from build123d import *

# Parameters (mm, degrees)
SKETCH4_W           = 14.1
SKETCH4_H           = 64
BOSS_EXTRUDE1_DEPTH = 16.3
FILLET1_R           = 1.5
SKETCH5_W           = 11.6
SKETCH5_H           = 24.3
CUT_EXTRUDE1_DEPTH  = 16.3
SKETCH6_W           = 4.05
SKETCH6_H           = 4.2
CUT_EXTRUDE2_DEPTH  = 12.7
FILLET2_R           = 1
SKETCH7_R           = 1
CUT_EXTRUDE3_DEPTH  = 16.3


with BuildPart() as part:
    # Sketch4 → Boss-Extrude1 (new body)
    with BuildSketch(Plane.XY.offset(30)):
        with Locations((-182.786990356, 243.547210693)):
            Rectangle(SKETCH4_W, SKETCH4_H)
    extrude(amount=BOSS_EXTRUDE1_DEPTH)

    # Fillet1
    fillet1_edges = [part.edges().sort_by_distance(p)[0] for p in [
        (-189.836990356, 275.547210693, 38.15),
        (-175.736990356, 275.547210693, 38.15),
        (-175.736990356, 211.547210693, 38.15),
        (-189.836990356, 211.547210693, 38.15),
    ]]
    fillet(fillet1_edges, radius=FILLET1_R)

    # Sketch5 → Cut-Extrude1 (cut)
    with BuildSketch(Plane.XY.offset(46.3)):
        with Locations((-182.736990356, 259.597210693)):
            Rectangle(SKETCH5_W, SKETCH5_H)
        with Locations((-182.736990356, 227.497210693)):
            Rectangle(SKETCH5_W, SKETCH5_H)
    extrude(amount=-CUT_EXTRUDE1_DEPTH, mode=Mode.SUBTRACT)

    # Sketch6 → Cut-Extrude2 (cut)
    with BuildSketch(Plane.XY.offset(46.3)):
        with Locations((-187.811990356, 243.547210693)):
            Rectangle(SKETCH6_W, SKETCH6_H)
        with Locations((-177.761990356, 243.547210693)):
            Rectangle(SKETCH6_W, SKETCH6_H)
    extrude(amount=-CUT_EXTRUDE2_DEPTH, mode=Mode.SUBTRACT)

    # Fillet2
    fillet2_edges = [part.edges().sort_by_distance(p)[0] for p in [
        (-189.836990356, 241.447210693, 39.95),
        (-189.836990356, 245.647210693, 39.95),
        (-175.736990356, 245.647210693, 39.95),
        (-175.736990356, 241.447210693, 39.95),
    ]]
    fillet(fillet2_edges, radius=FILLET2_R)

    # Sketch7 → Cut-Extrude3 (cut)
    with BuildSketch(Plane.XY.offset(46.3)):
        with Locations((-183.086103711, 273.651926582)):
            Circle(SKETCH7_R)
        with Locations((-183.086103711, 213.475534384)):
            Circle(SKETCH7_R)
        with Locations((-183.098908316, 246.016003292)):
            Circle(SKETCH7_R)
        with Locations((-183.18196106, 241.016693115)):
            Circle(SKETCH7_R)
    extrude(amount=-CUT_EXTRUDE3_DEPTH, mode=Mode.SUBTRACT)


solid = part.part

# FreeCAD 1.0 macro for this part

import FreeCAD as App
import Part
import Sketcher
from FreeCAD import Vector
Q = App.Units.Quantity


def edges_at(feature, points):
    """Names of the edges that pass closest to the given points."""
    edges = feature.Shape.Edges
    near = lambda p: min(range(len(edges)), key=lambda i: edges[i].distToShape(Part.Vertex(*p))[0])
    return sorted({f"Edge{near(p) + 1}" for p in points})

doc = App.newDocument("Part")
params = doc.addObject("Spreadsheet::Sheet", "Params")
for row, (alias, value) in enumerate([
    ("sketch1_height", "64 mm"),
    ("sketch1_width", "14.1 mm"),
    ("pad1_length", "16.3 mm"),
    ("fillet_radius", "1.5 mm"),
    ("sketch2_width", "11.6 mm"),
    ("sketch2_height", "24.3 mm"),
    ("pocket1_length", "16.3 mm"),
    ("sketch3_height", "4.2 mm"),
    ("sketch3_width", "4.05 mm"),
    ("pocket2_length", "12.7 mm"),
    ("fillet2_radius", "1 mm"),
    ("sketch4_diameter", "2 mm"),
    ("pocket3_length", "16.3 mm"),
], start=1):
    params.set(f"A{row}", alias)
    params.set(f"B{row}", "=" + value)
    params.setAlias(f"B{row}", alias)

body = doc.addObject("PartDesign::Body", "Body")

sketch1 = body.newObject("Sketcher::SketchObject", "Sketch")
sketch1.AttachmentSupport = (doc.getObject("XY_Plane"), [""])
sketch1.MapMode = "FlatFace"
sketch1.AttachmentOffset = App.Placement(Vector(0, 0, 30), App.Rotation())
sketch1.addGeometry(Part.LineSegment(Vector(-190, 276, 0), Vector(-190, 212, 0)), False)
sketch1.addGeometry(Part.LineSegment(Vector(-190, 212, 0), Vector(-176, 212, 0)), False)
sketch1.addGeometry(Part.LineSegment(Vector(-176, 212, 0), Vector(-176, 276, 0)), False)
sketch1.addGeometry(Part.LineSegment(Vector(-176, 276, 0), Vector(-190, 276, 0)), False)
sketch1.addConstraint(Sketcher.Constraint("Coincident", 0, 2, 1, 1))
sketch1.addConstraint(Sketcher.Constraint("Coincident", 1, 2, 2, 1))
sketch1.addConstraint(Sketcher.Constraint("Coincident", 2, 2, 3, 1))
sketch1.addConstraint(Sketcher.Constraint("Coincident", 3, 2, 0, 1))
sketch1.addConstraint(Sketcher.Constraint("Vertical", 0))
sketch1.addConstraint(Sketcher.Constraint("Horizontal", 1))
sketch1.addConstraint(Sketcher.Constraint("Vertical", 2))
sketch1.addConstraint(Sketcher.Constraint("Horizontal", 3))
sketch1.addConstraint(Sketcher.Constraint("DistanceY", 0, 2, 0, 1, Q("64 mm")))
sketch1.addConstraint(Sketcher.Constraint("DistanceX", 1, 1, 1, 2, Q("14.1 mm")))
sketch1.addConstraint(Sketcher.Constraint("DistanceX", 0, 2, -1, 1, Q("189.83699 mm")))
sketch1.addConstraint(Sketcher.Constraint("DistanceY", -1, 1, 0, 2, Q("211.547211 mm")))
sketch1.setExpression("Constraints[8]", "Params.sketch1_height")
sketch1.setExpression("Constraints[9]", "Params.sketch1_width")
pad1 = body.newObject("PartDesign::Pad", "Pad")
pad1.Profile = sketch1
pad1.setExpression("Length", "Params.pad1_length")
doc.recompute()

fillet = body.newObject("PartDesign::Fillet", "Fillet")
fillet.Base = (pad1, edges_at(pad1, [
    (-189.837, 275.547, 38.15),
    (-175.737, 275.547, 38.15),
    (-175.737, 211.547, 38.15),
    (-189.837, 211.547, 38.15),
]))
fillet.setExpression("Radius", "Params.fillet_radius")

sketch2 = body.newObject("Sketcher::SketchObject", "Sketch001")
sketch2.AttachmentSupport = (doc.getObject("XY_Plane"), [""])
sketch2.MapMode = "FlatFace"
sketch2.AttachmentOffset = App.Placement(Vector(0, 0, 46.3), App.Rotation())
sketch2.addGeometry(Part.LineSegment(Vector(-189, 272, 0), Vector(-189, 247, 0)), False)
sketch2.addGeometry(Part.LineSegment(Vector(-189, 247, 0), Vector(-177, 247, 0)), False)
sketch2.addGeometry(Part.LineSegment(Vector(-177, 247, 0), Vector(-177, 272, 0)), False)
sketch2.addGeometry(Part.LineSegment(Vector(-177, 272, 0), Vector(-189, 272, 0)), False)
sketch2.addGeometry(Part.LineSegment(Vector(-189, 240, 0), Vector(-189, 215, 0)), False)
sketch2.addGeometry(Part.LineSegment(Vector(-189, 215, 0), Vector(-177, 215, 0)), False)
sketch2.addGeometry(Part.LineSegment(Vector(-177, 215, 0), Vector(-177, 240, 0)), False)
sketch2.addGeometry(Part.LineSegment(Vector(-177, 240, 0), Vector(-189, 240, 0)), False)
sketch2.addConstraint(Sketcher.Constraint("Coincident", 0, 2, 1, 1))
sketch2.addConstraint(Sketcher.Constraint("Coincident", 1, 2, 2, 1))
sketch2.addConstraint(Sketcher.Constraint("Coincident", 2, 2, 3, 1))
sketch2.addConstraint(Sketcher.Constraint("Coincident", 3, 2, 0, 1))
sketch2.addConstraint(Sketcher.Constraint("Coincident", 4, 2, 5, 1))
sketch2.addConstraint(Sketcher.Constraint("Coincident", 5, 2, 6, 1))
sketch2.addConstraint(Sketcher.Constraint("Coincident", 6, 2, 7, 1))
sketch2.addConstraint(Sketcher.Constraint("Coincident", 7, 2, 4, 1))
sketch2.addConstraint(Sketcher.Constraint("Vertical", 0))
sketch2.addConstraint(Sketcher.Constraint("Horizontal", 1))
sketch2.addConstraint(Sketcher.Constraint("Vertical", 2))
sketch2.addConstraint(Sketcher.Constraint("Horizontal", 3))
sketch2.addConstraint(Sketcher.Constraint("Vertical", 4))
sketch2.addConstraint(Sketcher.Constraint("Horizontal", 5))
sketch2.addConstraint(Sketcher.Constraint("Vertical", 6))
sketch2.addConstraint(Sketcher.Constraint("Horizontal", 7))
sketch2.addConstraint(Sketcher.Constraint("Vertical", 3, 2, 4, 2))
sketch2.addConstraint(Sketcher.Constraint("Vertical", 2, 2, 5, 2))
sketch2.addConstraint(Sketcher.Constraint("Equal", 2, 4))
sketch2.addConstraint(Sketcher.Constraint("DistanceX", 1, 1, 1, 2, Q("11.6 mm")))
sketch2.addConstraint(Sketcher.Constraint("DistanceY", 0, 2, 0, 1, Q("24.3 mm")))
sketch2.addConstraint(Sketcher.Constraint("DistanceY", 4, 2, 0, 2, Q("32.1 mm")))
sketch2.addConstraint(Sketcher.Constraint("DistanceX", 0, 2, -1, 1, Q("188.53699 mm")))
sketch2.addConstraint(Sketcher.Constraint("DistanceY", -1, 1, 0, 2, Q("247.447211 mm")))
sketch2.setExpression("Constraints[19]", "Params.sketch2_width")
sketch2.setExpression("Constraints[20]", "Params.sketch2_height")
pocket1 = body.newObject("PartDesign::Pocket", "Pocket")
pocket1.Profile = sketch2
pocket1.setExpression("Length", "Params.pocket1_length")

sketch3 = body.newObject("Sketcher::SketchObject", "Sketch002")
sketch3.AttachmentSupport = (doc.getObject("XY_Plane"), [""])
sketch3.MapMode = "FlatFace"
sketch3.AttachmentOffset = App.Placement(Vector(0, 0, 46.3), App.Rotation())
sketch3.addGeometry(Part.LineSegment(Vector(-189.8, 245.6, 0), Vector(-189.8, 241.4, 0)), False)
sketch3.addGeometry(Part.LineSegment(Vector(-189.8, 241.4, 0), Vector(-185.8, 241.4, 0)), False)
sketch3.addGeometry(Part.LineSegment(Vector(-185.8, 241.4, 0), Vector(-185.8, 245.6, 0)), False)
sketch3.addGeometry(Part.LineSegment(Vector(-185.8, 245.6, 0), Vector(-189.8, 245.6, 0)), False)
sketch3.addGeometry(Part.LineSegment(Vector(-179.8, 245.6, 0), Vector(-179.8, 241.4, 0)), False)
sketch3.addGeometry(Part.LineSegment(Vector(-179.8, 241.4, 0), Vector(-175.7, 241.4, 0)), False)
sketch3.addGeometry(Part.LineSegment(Vector(-175.7, 241.4, 0), Vector(-175.7, 245.6, 0)), False)
sketch3.addGeometry(Part.LineSegment(Vector(-175.7, 245.6, 0), Vector(-179.8, 245.6, 0)), False)
sketch3.addConstraint(Sketcher.Constraint("Coincident", 0, 2, 1, 1))
sketch3.addConstraint(Sketcher.Constraint("Coincident", 1, 2, 2, 1))
sketch3.addConstraint(Sketcher.Constraint("Coincident", 2, 2, 3, 1))
sketch3.addConstraint(Sketcher.Constraint("Coincident", 3, 2, 0, 1))
sketch3.addConstraint(Sketcher.Constraint("Coincident", 4, 2, 5, 1))
sketch3.addConstraint(Sketcher.Constraint("Coincident", 5, 2, 6, 1))
sketch3.addConstraint(Sketcher.Constraint("Coincident", 6, 2, 7, 1))
sketch3.addConstraint(Sketcher.Constraint("Coincident", 7, 2, 4, 1))
sketch3.addConstraint(Sketcher.Constraint("Vertical", 0))
sketch3.addConstraint(Sketcher.Constraint("Horizontal", 1))
sketch3.addConstraint(Sketcher.Constraint("Vertical", 2))
sketch3.addConstraint(Sketcher.Constraint("Horizontal", 3))
sketch3.addConstraint(Sketcher.Constraint("Vertical", 4))
sketch3.addConstraint(Sketcher.Constraint("Horizontal", 5))
sketch3.addConstraint(Sketcher.Constraint("Vertical", 6))
sketch3.addConstraint(Sketcher.Constraint("Horizontal", 7))
sketch3.addConstraint(Sketcher.Constraint("Horizontal", 1, 2, 4, 2))
sketch3.addConstraint(Sketcher.Constraint("Horizontal", 3, 2, 6, 2))
sketch3.addConstraint(Sketcher.Constraint("Equal", 3, 5))
sketch3.addConstraint(Sketcher.Constraint("DistanceY", 0, 2, 0, 1, Q("4.2 mm")))
sketch3.addConstraint(Sketcher.Constraint("DistanceX", 1, 2, 4, 2, Q("6 mm")))
sketch3.addConstraint(Sketcher.Constraint("DistanceX", 1, 1, 1, 2, Q("4.05 mm")))
sketch3.addConstraint(Sketcher.Constraint("DistanceX", 0, 2, -1, 1, Q("189.83699 mm")))
sketch3.addConstraint(Sketcher.Constraint("DistanceY", -1, 1, 0, 2, Q("241.447211 mm")))
sketch3.setExpression("Constraints[19]", "Params.sketch3_height")
sketch3.setExpression("Constraints[21]", "Params.sketch3_width")
pocket2 = body.newObject("PartDesign::Pocket", "Pocket001")
pocket2.Profile = sketch3
pocket2.setExpression("Length", "Params.pocket2_length")
doc.recompute()

fillet2 = body.newObject("PartDesign::Fillet", "Fillet001")
fillet2.Base = (pocket2, edges_at(pocket2, [
    (-189.837, 241.447, 39.95),
    (-189.837, 245.647, 39.95),
    (-175.737, 245.647, 39.95),
    (-175.737, 241.447, 39.95),
]))
fillet2.setExpression("Radius", "Params.fillet2_radius")

sketch4 = body.newObject("Sketcher::SketchObject", "Sketch003")
sketch4.AttachmentSupport = (doc.getObject("XY_Plane"), [""])
sketch4.MapMode = "FlatFace"
sketch4.AttachmentOffset = App.Placement(Vector(0, 0, 46.3), App.Rotation())
sketch4.addGeometry(Part.Circle(Vector(-183.1, 273.7, 0), Vector(0, 0, 1), 1), False)
sketch4.addGeometry(Part.Circle(Vector(-183.1, 213.5, 0), Vector(0, 0, 1), 1), False)
sketch4.addGeometry(Part.Circle(Vector(-183.1, 246, 0), Vector(0, 0, 1), 1), False)
sketch4.addGeometry(Part.Circle(Vector(-183.2, 241, 0), Vector(0, 0, 1), 1), False)
sketch4.addConstraint(Sketcher.Constraint("Equal", 0, 1))
sketch4.addConstraint(Sketcher.Constraint("Equal", 1, 2))
sketch4.addConstraint(Sketcher.Constraint("Equal", 2, 3))
sketch4.addConstraint(Sketcher.Constraint("Vertical", 0, 3, 1, 3))
sketch4.addConstraint(Sketcher.Constraint("Diameter", 0, Q("2 mm")))
sketch4.addConstraint(Sketcher.Constraint("DistanceX", 2, 3, -1, 1, Q("183.098908 mm")))
sketch4.addConstraint(Sketcher.Constraint("DistanceX", 3, 3, -1, 1, Q("183.181961 mm")))
sketch4.addConstraint(Sketcher.Constraint("DistanceY", 1, 3, 2, 3, Q("32.540469 mm")))
sketch4.addConstraint(Sketcher.Constraint("DistanceY", 3, 3, 2, 3, Q("4.99931 mm")))
sketch4.addConstraint(Sketcher.Constraint("DistanceX", 0, 3, -1, 1, Q("183.086104 mm")))
sketch4.addConstraint(Sketcher.Constraint("DistanceY", -1, 1, 0, 3, Q("273.651927 mm")))
sketch4.addConstraint(Sketcher.Constraint("DistanceY", -1, 1, 1, 3, Q("213.475534 mm")))
sketch4.setExpression("Constraints[4]", "Params.sketch4_diameter")
pocket3 = body.newObject("PartDesign::Pocket", "Pocket002")
pocket3.Profile = sketch4
pocket3.setExpression("Length", "Params.pocket3_length")

doc.recompute()
